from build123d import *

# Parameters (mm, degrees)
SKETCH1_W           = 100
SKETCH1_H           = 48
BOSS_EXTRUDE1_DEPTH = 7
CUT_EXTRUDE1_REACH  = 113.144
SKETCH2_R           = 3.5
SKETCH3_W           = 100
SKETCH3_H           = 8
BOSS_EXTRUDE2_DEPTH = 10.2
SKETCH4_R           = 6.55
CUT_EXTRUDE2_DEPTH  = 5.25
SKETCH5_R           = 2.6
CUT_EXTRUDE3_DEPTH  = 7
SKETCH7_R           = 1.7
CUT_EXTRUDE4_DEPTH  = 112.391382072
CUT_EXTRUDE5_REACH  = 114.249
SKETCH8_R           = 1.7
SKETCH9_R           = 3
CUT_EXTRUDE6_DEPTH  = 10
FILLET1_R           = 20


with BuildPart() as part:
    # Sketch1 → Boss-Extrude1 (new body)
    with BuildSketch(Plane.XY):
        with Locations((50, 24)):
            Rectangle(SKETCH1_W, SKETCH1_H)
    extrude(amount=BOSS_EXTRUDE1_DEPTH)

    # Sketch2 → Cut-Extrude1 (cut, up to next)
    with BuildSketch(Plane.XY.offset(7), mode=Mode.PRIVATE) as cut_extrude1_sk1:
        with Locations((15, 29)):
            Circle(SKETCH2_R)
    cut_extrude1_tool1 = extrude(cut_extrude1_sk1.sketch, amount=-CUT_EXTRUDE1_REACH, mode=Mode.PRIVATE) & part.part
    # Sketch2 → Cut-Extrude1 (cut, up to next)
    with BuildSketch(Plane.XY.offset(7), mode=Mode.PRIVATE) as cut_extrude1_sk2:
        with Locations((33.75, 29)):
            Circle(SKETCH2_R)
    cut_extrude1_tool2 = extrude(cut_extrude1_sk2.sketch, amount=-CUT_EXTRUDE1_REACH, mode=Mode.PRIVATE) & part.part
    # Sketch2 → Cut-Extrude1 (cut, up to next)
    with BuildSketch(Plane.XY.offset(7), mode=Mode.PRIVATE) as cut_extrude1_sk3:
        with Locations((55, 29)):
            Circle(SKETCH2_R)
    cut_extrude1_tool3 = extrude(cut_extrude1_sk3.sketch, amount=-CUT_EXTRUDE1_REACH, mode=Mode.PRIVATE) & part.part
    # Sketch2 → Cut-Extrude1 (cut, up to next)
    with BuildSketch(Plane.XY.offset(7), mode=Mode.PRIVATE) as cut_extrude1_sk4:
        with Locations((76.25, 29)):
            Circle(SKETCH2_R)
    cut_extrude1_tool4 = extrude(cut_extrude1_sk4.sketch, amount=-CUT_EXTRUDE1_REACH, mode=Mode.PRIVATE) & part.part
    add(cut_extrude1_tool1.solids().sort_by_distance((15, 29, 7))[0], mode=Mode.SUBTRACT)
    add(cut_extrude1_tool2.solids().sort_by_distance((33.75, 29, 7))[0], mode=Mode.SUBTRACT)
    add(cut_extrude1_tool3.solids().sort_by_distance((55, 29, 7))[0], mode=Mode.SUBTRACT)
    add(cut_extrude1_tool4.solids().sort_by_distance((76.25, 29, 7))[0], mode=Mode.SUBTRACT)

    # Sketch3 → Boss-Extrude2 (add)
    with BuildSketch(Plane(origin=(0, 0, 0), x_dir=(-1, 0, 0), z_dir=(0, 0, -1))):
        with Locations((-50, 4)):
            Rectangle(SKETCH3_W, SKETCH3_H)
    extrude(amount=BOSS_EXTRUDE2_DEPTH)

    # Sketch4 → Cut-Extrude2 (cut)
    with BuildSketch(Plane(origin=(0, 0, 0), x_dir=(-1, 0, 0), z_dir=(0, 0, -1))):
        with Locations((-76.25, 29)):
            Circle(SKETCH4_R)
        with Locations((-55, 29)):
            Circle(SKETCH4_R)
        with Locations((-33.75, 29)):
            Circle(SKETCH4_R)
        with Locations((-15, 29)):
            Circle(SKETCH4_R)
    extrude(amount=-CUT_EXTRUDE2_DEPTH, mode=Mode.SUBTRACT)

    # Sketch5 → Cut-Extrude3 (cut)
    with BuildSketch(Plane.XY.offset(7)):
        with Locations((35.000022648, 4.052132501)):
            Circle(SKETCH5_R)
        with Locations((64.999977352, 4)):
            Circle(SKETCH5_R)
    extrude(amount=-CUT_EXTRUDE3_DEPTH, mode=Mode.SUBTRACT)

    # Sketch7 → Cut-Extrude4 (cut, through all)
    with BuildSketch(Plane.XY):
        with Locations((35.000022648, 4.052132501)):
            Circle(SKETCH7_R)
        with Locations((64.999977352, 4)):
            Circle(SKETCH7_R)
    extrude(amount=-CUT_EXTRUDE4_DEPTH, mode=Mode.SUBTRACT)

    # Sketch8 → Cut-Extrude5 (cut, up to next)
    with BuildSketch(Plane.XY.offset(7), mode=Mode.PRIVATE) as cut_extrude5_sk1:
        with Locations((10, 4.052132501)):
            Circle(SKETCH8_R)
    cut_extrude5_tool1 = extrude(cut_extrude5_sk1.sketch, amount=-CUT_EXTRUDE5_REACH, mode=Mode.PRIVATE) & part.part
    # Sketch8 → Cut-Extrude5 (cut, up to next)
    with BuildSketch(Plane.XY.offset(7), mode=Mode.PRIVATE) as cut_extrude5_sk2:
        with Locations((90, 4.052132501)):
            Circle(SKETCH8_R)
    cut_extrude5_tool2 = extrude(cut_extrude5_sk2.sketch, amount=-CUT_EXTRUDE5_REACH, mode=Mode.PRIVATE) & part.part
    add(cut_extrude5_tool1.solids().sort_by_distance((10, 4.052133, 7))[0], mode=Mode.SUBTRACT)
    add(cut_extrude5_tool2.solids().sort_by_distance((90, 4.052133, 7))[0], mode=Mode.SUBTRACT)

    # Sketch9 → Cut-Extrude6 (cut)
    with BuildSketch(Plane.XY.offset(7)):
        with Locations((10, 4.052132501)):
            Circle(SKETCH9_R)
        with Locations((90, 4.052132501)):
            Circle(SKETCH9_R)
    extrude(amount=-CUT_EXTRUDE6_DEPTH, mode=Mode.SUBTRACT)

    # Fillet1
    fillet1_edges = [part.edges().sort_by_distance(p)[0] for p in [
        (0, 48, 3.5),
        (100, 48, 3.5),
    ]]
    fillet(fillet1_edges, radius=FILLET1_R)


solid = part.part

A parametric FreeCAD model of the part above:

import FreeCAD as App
import Part
import Sketcher
from FreeCAD import Vector


def edges_at(feature, points):
    """Names of the edges that pass closest to the given points."""
    edges = feature.Shape.Edges
    near = lambda p: min(range(len(edges)), key=lambda i: edges[i].distToShape(Part.Vertex(*p))[0])
    return sorted({f"Edge{near(p) + 1}" for p in points})

doc = App.newDocument("Part")
params = doc.addObject("Spreadsheet::Sheet", "Params")
for row, (alias, value) in enumerate([
    ("sketch1_width", "100 mm"),
    ("sketch1_height", "48 mm"),
    ("pad1_length", "7 mm"),
    ("sketch2_diameter", "7 mm"),
    ("sketch3_diameter", "7 mm"),
    ("sketch4_diameter", "7 mm"),
    ("sketch5_diameter", "7 mm"),
    ("sketch6_width", "100 mm"),
    ("sketch6_height", "8 mm"),
    ("pad2_length", "10.2 mm"),
    ("sketch7_diameter", "13.1 mm"),
    ("pocket5_length", "5.25 mm"),
    ("sketch8_diameter", "5.2 mm"),
    ("pocket6_length", "7 mm"),
    ("sketch9_diameter", "3.4 mm"),
    ("sketch10_diameter", "3.4 mm"),
    ("sketch11_diameter", "3.4 mm"),
    ("sketch12_diameter", "6 mm"),
    ("pocket10_length", "10 mm"),
    ("fillet_radius", "20 mm"),
], start=1):
    params.set(f"A{row}", alias)
    params.set(f"B{row}", "=" + value)
    params.setAlias(f"B{row}", alias)

body = doc.addObject("PartDesign::Body", "Body")

# Sketch on XY plane
sketch1 = body.newObject("Sketcher::SketchObject", "Sketch")
sketch1.AttachmentSupport = (doc.getObject("XY_Plane"), [""])
sketch1.MapMode = "FlatFace"
sketch1.addGeometry([
    Part.LineSegment(Vector(0, 48, 0), Vector(0, 0, 0)),
    Part.LineSegment(Vector(0, 0, 0), Vector(100, 0, 0)),
    Part.LineSegment(Vector(100, 0, 0), Vector(100, 48, 0)),
    Part.LineSegment(Vector(100, 48, 0), Vector(0, 48, 0)),
], False)
sketch1.addConstraint([
    Sketcher.Constraint("Coincident", 0, 2, 1, 1),
    Sketcher.Constraint("Coincident", 1, 2, 2, 1),
    Sketcher.Constraint("Coincident", 2, 2, 3, 1),
    Sketcher.Constraint("Coincident", 3, 2, 0, 1),
    Sketcher.Constraint("Vertical", 0),
    Sketcher.Constraint("Horizontal", 1),
    Sketcher.Constraint("Vertical", 2),
    Sketcher.Constraint("Horizontal", 3),
    Sketcher.Constraint("Coincident", 0, 2, -1, 1),
    Sketcher.Constraint("DistanceX", 1, 1, 1, 2, 100.0),
    Sketcher.Constraint("DistanceY", 0, 2, 0, 1, 48.0),
])
sketch1.setExpression("Constraints[9]", "Params.sketch1_width")
sketch1.setExpression("Constraints[10]", "Params.sketch1_height")
pad1 = body.newObject("PartDesign::Pad", "Pad")
pad1.Profile = sketch1
pad1.setExpression("Length", "Params.pad1_length")

# Sketch on XY plane
sketch2 = body.newObject("Sketcher::SketchObject", "Sketch001")
sketch2.AttachmentSupport = (doc.getObject("XY_Plane"), [""])
sketch2.MapMode = "FlatFace"
sketch2.AttachmentOffset = App.Placement(Vector(0, 0, 7), App.Rotation())
sketch2.addGeometry(Part.Circle(Vector(15, 29, 0), Vector(0, 0, 1), 3.5), False)
sketch2.addConstraint([
    Sketcher.Constraint("Diameter", 0, 7.0),
    Sketcher.Constraint("DistanceX", -1, 1, 0, 3, 15.0),
    Sketcher.Constraint("DistanceY", -1, 1, 0, 3, 29.0),
])
sketch2.setExpression("Constraints[0]", "Params.sketch2_diameter")
pocket1 = body.newObject("PartDesign::Pocket", "Pocket")
pocket1.Profile = sketch2
pocket1.Type = "UpToFirst"

# Sketch on XY plane
sketch3 = body.newObject("Sketcher::SketchObject", "Sketch002")
sketch3.AttachmentSupport = (doc.getObject("XY_Plane"), [""])
sketch3.MapMode = "FlatFace"
sketch3.AttachmentOffset = App.Placement(Vector(0, 0, 7), App.Rotation())
sketch3.addGeometry(Part.Circle(Vector(33.8, 29, 0), Vector(0, 0, 1), 3.5), False)
sketch3.addConstraint([
    Sketcher.Constraint("Diameter", 0, 7.0),
    Sketcher.Constraint("DistanceY", -1, 1, 0, 3, 29.0),
    Sketcher.Constraint("DistanceX", -1, 1, 0, 3, 33.75),
])
sketch3.setExpression("Constraints[0]", "Params.sketch3_diameter")
pocket2 = body.newObject("PartDesign::Pocket", "Pocket001")
pocket2.Profile = sketch3
pocket2.Type = "UpToFirst"

# Sketch on XY plane
sketch4 = body.newObject("Sketcher::SketchObject", "Sketch003")
sketch4.AttachmentSupport = (doc.getObject("XY_Plane"), [""])
sketch4.MapMode = "FlatFace"
sketch4.AttachmentOffset = App.Placement(Vector(0, 0, 7), App.Rotation())
sketch4.addGeometry(Part.Circle(Vector(55, 29, 0), Vector(0, 0, 1), 3.5), False)
sketch4.addConstraint([
    Sketcher.Constraint("Diameter", 0, 7.0),
    Sketcher.Constraint("DistanceX", -1, 1, 0, 3, 55.0),
    Sketcher.Constraint("DistanceY", -1, 1, 0, 3, 29.0),
])
sketch4.setExpression("Constraints[0]", "Params.sketch4_diameter")
pocket3 = body.newObject("PartDesign::Pocket", "Pocket002")
pocket3.Profile = sketch4
pocket3.Type = "UpToFirst"

# Sketch on XY plane
sketch5 = body.newObject("Sketcher::SketchObject", "Sketch004")
sketch5.AttachmentSupport = (doc.getObject("XY_Plane"), [""])
sketch5.MapMode = "FlatFace"
sketch5.AttachmentOffset = App.Placement(Vector(0, 0, 7), App.Rotation())
sketch5.addGeometry(Part.Circle(Vector(76.2, 29, 0), Vector(0, 0, 1), 3.5), False)
sketch5.addConstraint([
    Sketcher.Constraint("Diameter", 0, 7.0),
    Sketcher.Constraint("DistanceY", -1, 1, 0, 3, 29.0),
    Sketcher.Constraint("DistanceX", -1, 1, 0, 3, 76.25),
])
sketch5.setExpression("Constraints[0]", "Params.sketch5_diameter")
pocket4 = body.newObject("PartDesign::Pocket", "Pocket003")
pocket4.Profile = sketch5
pocket4.Type = "UpToFirst"

# Sketch on XY plane
sketch6 = body.newObject("Sketcher::SketchObject", "Sketch005")
sketch6.AttachmentSupport = (doc.getObject("XY_Plane"), [""])
sketch6.MapMode = "FlatFace"
sketch6.addGeometry([
    Part.LineSegment(Vector(100, 8, 0), Vector(100, 0, 0)),
    Part.LineSegment(Vector(100, 0, 0), Vector(0, 0, 0)),
    Part.LineSegment(Vector(0, 0, 0), Vector(0, 8, 0)),
    Part.LineSegment(Vector(0, 8, 0), Vector(100, 8, 0)),
], False)
sketch6.addConstraint([
    Sketcher.Constraint("Coincident", 0, 2, 1, 1),
    Sketcher.Constraint("Coincident", 1, 2, 2, 1),
    Sketcher.Constraint("Coincident", 2, 2, 3, 1),
    Sketcher.Constraint("Coincident", 3, 2, 0, 1),
    Sketcher.Constraint("Vertical", 0),
    Sketcher.Constraint("Horizontal", 1),
    Sketcher.Constraint("Vertical", 2),
    Sketcher.Constraint("Horizontal", 3),
    Sketcher.Constraint("Coincident", 1, 2, -1, 1),
    Sketcher.Constraint("DistanceX", 1, 2, 1, 1, 100.0),
    Sketcher.Constraint("DistanceY", 0, 2, 0, 1, 8.0),
])
sketch6.setExpression("Constraints[9]", "Params.sketch6_width")
sketch6.setExpression("Constraints[10]", "Params.sketch6_height")
pad2 = body.newObject("PartDesign::Pad", "Pad001")
pad2.Profile = sketch6
pad2.setExpression("Length", "Params.pad2_length")
pad2.Reversed = True

# Sketch on XY plane
sketch7 = body.newObject("Sketcher::SketchObject", "Sketch006")
sketch7.AttachmentSupport = (doc.getObject("XY_Plane"), [""])
sketch7.MapMode = "FlatFace"
sketch7.addGeometry([
    Part.Circle(Vector(76, 29, 0), Vector(0, 0, 1), 7),
    Part.Circle(Vector(55, 29, 0), Vector(0, 0, 1), 7),
    Part.Circle(Vector(34, 29, 0), Vector(0, 0, 1), 7),
    Part.Circle(Vector(15, 29, 0), Vector(0, 0, 1), 7),
], False)
sketch7.addConstraint([
    Sketcher.Constraint("Equal", 0, 1),
    Sketcher.Constraint("Equal", 1, 2),
    Sketcher.Constraint("Equal", 2, 3),
    Sketcher.Constraint("Horizontal", 0, 3, 1, 3),
    Sketcher.Constraint("Horizontal", 1, 3, 2, 3),
    Sketcher.Constraint("Horizontal", 2, 3, 3, 3),
    Sketcher.Constraint("Diameter", 0, 13.1),
    Sketcher.Constraint("DistanceY", -1, 1, 0, 3, 29.0),
    Sketcher.Constraint("DistanceX", -1, 1, 1, 3, 55.0),
    Sketcher.Constraint("DistanceX", -1, 1, 3, 3, 15.0),
    Sketcher.Constraint("DistanceX", 2, 3, 0, 3, 42.5),
    Sketcher.Constraint("DistanceX", -1, 1, 0, 3, 76.25),
])
sketch7.setExpression("Constraints[6]", "Params.sketch7_diameter")
pocket5 = body.newObject("PartDesign::Pocket", "Pocket004")
pocket5.Profile = sketch7
pocket5.setExpression("Length", "Params.pocket5_length")
pocket5.Reversed = True

# Sketch on XY plane
sketch8 = body.newObject("Sketcher::SketchObject", "Sketch007")
sketch8.AttachmentSupport = (doc.getObject("XY_Plane"), [""])
sketch8.MapMode = "FlatFace"
sketch8.AttachmentOffset = App.Placement(Vector(0, 0, 7), App.Rotation())
sketch8.addGeometry([
    Part.Circle(Vector(35, 4.1, 0), Vector(0, 0, 1), 2.6),
    Part.Circle(Vector(65, 4, 0), Vector(0, 0, 1), 2.6),
], False)
sketch8.addConstraint([
    Sketcher.Constraint("Equal", 0, 1),
    Sketcher.Constraint("Diameter", 0, 5.2),
    Sketcher.Constraint("DistanceY", -1, 1, 1, 3, 4.0),
    Sketcher.Constraint("DistanceX", -1, 1, 0, 3, 35.000023),
    Sketcher.Constraint("DistanceY", -1, 1, 0, 3, 4.052133),
    Sketcher.Constraint("DistanceX", -1, 1, 1, 3, 64.999977),
])
sketch8.setExpression("Constraints[1]", "Params.sketch8_diameter")
pocket6 = body.newObject("PartDesign::Pocket", "Pocket005")
pocket6.Profile = sketch8
pocket6.setExpression("Length", "Params.pocket6_length")

# Sketch on XY plane
sketch9 = body.newObject("Sketcher::SketchObject", "Sketch008")
sketch9.AttachmentSupport = (doc.getObject("XY_Plane"), [""])
sketch9.MapMode = "FlatFace"
sketch9.addGeometry([
    Part.Circle(Vector(35, 4.1, 0), Vector(0, 0, 1), 1.7),
    Part.Circle(Vector(65, 4, 0), Vector(0, 0, 1), 1.7),
], False)
sketch9.addConstraint([
    Sketcher.Constraint("Equal", 0, 1),
    Sketcher.Constraint("Diameter", 0, 3.4),
    Sketcher.Constraint("DistanceY", -1, 1, 1, 3, 4.0),
    Sketcher.Constraint("DistanceX", -1, 1, 0, 3, 35.000023),
    Sketcher.Constraint("DistanceY", -1, 1, 0, 3, 4.052133),
    Sketcher.Constraint("DistanceX", -1, 1, 1, 3, 64.999977),
])
sketch9.setExpression("Constraints[1]", "Params.sketch9_diameter")
pocket7 = body.newObject("PartDesign::Pocket", "Pocket006")
pocket7.Profile = sketch9
pocket7.Type = "ThroughAll"

# Sketch on XY plane
sketch10 = body.newObject("Sketcher::SketchObject", "Sketch009")
sketch10.AttachmentSupport = (doc.getObject("XY_Plane"), [""])
sketch10.MapMode = "FlatFace"
sketch10.AttachmentOffset = App.Placement(Vector(0, 0, 7), App.Rotation())
sketch10.addGeometry(Part.Circle(Vector(10, 4.1, 0), Vector(0, 0, 1), 1.7), False)
sketch10.addConstraint([
    Sketcher.Constraint("Diameter", 0, 3.4),
    Sketcher.Constraint("DistanceX", -1, 1, 0, 3, 10.0),
    Sketcher.Constraint("DistanceY", -1, 1, 0, 3, 4.052133),
])
sketch10.setExpression("Constraints[0]", "Params.sketch10_diameter")
pocket8 = body.newObject("PartDesign::Pocket", "Pocket007")
pocket8.Profile = sketch10
pocket8.Type = "UpToFirst"

# Sketch on XY plane
sketch11 = body.newObject("Sketcher::SketchObject", "Sketch010")
sketch11.AttachmentSupport = (doc.getObject("XY_Plane"), [""])
sketch11.MapMode = "FlatFace"
sketch11.AttachmentOffset = App.Placement(Vector(0, 0, 7), App.Rotation())
sketch11.addGeometry(Part.Circle(Vector(90, 4.1, 0), Vector(0, 0, 1), 1.7), False)
sketch11.addConstraint([
    Sketcher.Constraint("Diameter", 0, 3.4),
    Sketcher.Constraint("DistanceX", -1, 1, 0, 3, 90.0),
    Sketcher.Constraint("DistanceY", -1, 1, 0, 3, 4.052133),
])
sketch11.setExpression("Constraints[0]", "Params.sketch11_diameter")
pocket9 = body.newObject("PartDesign::Pocket", "Pocket008")
pocket9.Profile = sketch11
pocket9.Type = "UpToFirst"

# Sketch on XY plane
sketch12 = body.newObject("Sketcher::SketchObject", "Sketch011")
sketch12.AttachmentSupport = (doc.getObject("XY_Plane"), [""])
sketch12.MapMode = "FlatFace"
sketch12.AttachmentOffset = App.Placement(Vector(0, 0, 7), App.Rotation())
sketch12.addGeometry([
    Part.Circle(Vector(10, 4.1, 0), Vector(0, 0, 1), 3),
    Part.Circle(Vector(90, 4.1, 0), Vector(0, 0, 1), 3),
], False)
sketch12.addConstraint([
    Sketcher.Constraint("Equal", 0, 1),
    Sketcher.Constraint("Horizontal", 0, 3, 1, 3),
    Sketcher.Constraint("Diameter", 0, 6.0),
    Sketcher.Constraint("DistanceX", -1, 1, 0, 3, 10.0),
    Sketcher.Constraint("DistanceX", -1, 1, 1, 3, 90.0),
    Sketcher.Constraint("DistanceY", -1, 1, 0, 3, 4.052133),
])
sketch12.setExpression("Constraints[2]", "Params.sketch12_diameter")
pocket10 = body.newObject("PartDesign::Pocket", "Pocket009")
pocket10.Profile = sketch12
pocket10.setExpression("Length", "Params.pocket10_length")
doc.recompute()

fillet = body.newObject("PartDesign::Fillet", "Fillet")
fillet.Base = (pocket10, edges_at(pocket10, [(0, 48, 3.5), (100, 48, 3.5)]))
fillet.setExpression("Radius", "Params.fillet_radius")

doc.recompute()
